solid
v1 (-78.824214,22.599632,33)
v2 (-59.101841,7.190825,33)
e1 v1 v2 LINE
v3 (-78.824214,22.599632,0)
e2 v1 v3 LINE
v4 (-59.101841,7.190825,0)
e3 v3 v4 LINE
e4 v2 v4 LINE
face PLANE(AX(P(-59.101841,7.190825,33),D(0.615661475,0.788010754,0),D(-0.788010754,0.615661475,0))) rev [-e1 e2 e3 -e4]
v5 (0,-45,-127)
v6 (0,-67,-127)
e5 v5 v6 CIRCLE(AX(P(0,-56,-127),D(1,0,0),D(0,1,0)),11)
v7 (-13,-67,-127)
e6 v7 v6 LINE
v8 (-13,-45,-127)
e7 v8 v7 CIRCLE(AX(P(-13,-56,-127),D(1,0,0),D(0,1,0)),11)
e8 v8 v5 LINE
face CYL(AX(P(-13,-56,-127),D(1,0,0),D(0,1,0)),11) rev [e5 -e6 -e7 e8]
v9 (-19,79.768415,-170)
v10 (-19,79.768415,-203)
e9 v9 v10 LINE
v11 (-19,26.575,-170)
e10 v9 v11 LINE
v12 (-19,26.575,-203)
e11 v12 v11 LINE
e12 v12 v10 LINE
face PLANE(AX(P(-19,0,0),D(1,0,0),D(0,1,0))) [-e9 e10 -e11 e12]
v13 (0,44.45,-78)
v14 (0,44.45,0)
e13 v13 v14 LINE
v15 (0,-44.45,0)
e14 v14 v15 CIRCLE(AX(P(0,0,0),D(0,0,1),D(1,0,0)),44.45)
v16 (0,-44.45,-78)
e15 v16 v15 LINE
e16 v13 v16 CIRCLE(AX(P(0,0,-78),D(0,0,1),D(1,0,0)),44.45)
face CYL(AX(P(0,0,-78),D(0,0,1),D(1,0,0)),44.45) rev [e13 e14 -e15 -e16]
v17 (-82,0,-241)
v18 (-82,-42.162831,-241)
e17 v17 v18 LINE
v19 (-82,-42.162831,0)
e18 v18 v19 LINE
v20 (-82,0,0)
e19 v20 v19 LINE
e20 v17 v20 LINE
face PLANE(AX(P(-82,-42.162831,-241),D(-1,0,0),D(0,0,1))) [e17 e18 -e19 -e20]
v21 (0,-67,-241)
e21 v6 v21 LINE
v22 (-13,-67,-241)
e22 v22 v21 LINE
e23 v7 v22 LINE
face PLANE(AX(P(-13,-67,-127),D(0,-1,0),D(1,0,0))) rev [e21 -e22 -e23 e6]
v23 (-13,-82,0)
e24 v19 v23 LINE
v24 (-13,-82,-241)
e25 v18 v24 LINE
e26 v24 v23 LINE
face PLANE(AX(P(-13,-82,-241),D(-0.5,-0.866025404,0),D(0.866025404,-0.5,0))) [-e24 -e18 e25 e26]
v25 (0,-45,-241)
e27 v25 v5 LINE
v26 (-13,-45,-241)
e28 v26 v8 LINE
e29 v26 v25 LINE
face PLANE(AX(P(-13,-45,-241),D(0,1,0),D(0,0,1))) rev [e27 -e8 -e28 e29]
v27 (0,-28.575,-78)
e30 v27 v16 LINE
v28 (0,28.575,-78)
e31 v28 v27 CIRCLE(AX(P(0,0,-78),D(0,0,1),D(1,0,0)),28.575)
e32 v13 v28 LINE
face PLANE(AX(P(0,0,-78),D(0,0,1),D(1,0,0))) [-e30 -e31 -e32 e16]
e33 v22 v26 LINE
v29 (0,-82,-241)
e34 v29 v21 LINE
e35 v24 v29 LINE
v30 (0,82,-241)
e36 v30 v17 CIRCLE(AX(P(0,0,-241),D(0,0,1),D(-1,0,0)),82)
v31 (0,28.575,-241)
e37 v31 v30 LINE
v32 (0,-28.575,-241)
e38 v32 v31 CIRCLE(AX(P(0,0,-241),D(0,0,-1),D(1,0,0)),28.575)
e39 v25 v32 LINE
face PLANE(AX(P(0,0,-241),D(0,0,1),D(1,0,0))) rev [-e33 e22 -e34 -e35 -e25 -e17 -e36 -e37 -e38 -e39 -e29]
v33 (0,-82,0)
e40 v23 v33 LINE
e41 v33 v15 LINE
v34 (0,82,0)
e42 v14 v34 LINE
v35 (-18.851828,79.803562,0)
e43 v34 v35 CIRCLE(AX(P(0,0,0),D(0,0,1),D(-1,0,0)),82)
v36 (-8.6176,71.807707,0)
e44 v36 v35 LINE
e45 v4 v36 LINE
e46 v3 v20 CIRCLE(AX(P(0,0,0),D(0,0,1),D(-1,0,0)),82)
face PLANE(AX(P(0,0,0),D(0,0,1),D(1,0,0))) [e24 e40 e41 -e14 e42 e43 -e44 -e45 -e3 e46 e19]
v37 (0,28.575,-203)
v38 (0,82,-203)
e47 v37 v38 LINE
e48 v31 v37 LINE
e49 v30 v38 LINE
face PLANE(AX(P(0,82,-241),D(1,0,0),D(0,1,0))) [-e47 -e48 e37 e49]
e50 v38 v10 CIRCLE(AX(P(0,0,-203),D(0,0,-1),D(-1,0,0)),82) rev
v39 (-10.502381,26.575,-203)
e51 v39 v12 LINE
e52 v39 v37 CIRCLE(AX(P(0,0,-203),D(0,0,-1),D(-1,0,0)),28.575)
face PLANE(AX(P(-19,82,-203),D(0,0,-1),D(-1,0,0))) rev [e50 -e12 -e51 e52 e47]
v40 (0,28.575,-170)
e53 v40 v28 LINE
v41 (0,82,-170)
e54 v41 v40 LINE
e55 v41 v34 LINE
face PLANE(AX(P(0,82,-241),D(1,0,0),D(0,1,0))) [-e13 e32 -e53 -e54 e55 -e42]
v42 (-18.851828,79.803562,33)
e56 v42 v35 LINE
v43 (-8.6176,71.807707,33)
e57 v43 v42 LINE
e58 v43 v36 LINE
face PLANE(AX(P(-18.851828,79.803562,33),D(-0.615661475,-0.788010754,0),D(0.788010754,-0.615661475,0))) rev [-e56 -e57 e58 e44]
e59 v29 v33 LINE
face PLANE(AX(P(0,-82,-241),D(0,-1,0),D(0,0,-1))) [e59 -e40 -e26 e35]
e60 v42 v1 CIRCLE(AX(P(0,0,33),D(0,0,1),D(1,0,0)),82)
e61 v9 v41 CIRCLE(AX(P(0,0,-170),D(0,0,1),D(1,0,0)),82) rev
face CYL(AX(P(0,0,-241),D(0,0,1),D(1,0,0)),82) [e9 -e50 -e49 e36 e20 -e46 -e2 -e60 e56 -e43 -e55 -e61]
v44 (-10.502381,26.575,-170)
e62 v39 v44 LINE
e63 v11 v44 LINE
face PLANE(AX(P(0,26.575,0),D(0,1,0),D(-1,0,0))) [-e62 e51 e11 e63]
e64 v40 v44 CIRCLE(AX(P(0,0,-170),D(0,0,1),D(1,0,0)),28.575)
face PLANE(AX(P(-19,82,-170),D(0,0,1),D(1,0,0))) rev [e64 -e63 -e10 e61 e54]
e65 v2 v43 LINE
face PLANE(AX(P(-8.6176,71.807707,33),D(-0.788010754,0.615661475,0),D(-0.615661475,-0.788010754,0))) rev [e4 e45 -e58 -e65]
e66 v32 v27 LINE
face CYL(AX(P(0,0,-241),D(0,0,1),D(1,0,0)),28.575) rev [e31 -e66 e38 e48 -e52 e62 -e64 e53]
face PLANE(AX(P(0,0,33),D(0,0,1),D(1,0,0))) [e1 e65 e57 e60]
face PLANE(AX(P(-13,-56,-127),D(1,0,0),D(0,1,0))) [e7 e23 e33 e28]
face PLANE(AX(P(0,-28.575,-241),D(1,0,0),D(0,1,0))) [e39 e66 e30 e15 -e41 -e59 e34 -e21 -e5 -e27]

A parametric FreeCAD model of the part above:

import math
import FreeCAD as App
import Part
import Sketcher
from FreeCAD import Vector
Q = App.Units.Quantity


def add_polygon(sketch, points):
    """Adds a closed chain of lines whose ends are joined by coincident constraints."""
    first, n = sketch.GeometryCount, len(points)
    for a, b in zip(points, points[1:] + points[:1]):
        sketch.addGeometry(Part.LineSegment(App.Vector(*a, 0), App.Vector(*b, 0)), False)
    for i in range(n):
        sketch.addConstraint(Sketcher.Constraint("Coincident", first + i, 2, first + (i + 1) % n, 1))

doc = App.newDocument("Part")
body = doc.addObject("PartDesign::Body", "Body")

# Sketch on XY plane
sketch1 = doc.addObject("Sketcher::SketchObject", "Sketch")
body.addObject(sketch1)
sketch1.AttachmentSupport = (doc.XY_Plane, [""])
sketch1.MapMode = "FlatFace"
sketch1.addGeometry(Part.LineSegment(Vector(0, -82, 0), Vector(0, -29, 0)), False)
sketch1.addGeometry(Part.ArcOfCircle(Part.Circle(Vector(0, 0, 0), Vector(0, 0, 1), 29), math.radians(90), math.radians(270)), False)
sketch1.addGeometry(Part.LineSegment(Vector(0, 29, 0), Vector(0, 82, 0)), False)
sketch1.addGeometry(Part.ArcOfCircle(Part.Circle(Vector(0, 0, 0), Vector(0, 0, 1), 82), math.radians(90), math.radians(180)), False)
sketch1.addGeometry(Part.LineSegment(Vector(-82, 0, 0), Vector(-82, -42, 0)), False)
sketch1.addGeometry(Part.LineSegment(Vector(-82, -42, 0), Vector(-13, -82, 0)), False)
sketch1.addGeometry(Part.LineSegment(Vector(-13, -82, 0), Vector(0, -82, 0)), False)
sketch1.addConstraint(Sketcher.Constraint("Coincident", 0, 2, 1, 2))
sketch1.addConstraint(Sketcher.Constraint("Coincident", 1, 1, 2, 1))
sketch1.addConstraint(Sketcher.Constraint("Coincident", 2, 2, 3, 1))
sketch1.addConstraint(Sketcher.Constraint("Tangent", 3, 2, 4, 1))
sketch1.addConstraint(Sketcher.Constraint("Coincident", 4, 2, 5, 1))
sketch1.addConstraint(Sketcher.Constraint("Coincident", 5, 2, 6, 1))
sketch1.addConstraint(Sketcher.Constraint("Coincident", 6, 2, 0, 1))
sketch1.addConstraint(Sketcher.Constraint("Vertical", 0))
sketch1.addConstraint(Sketcher.Constraint("Vertical", 2))
sketch1.addConstraint(Sketcher.Constraint("Vertical", 4))
sketch1.addConstraint(Sketcher.Constraint("Horizontal", 6))
sketch1.addConstraint(Sketcher.Constraint("Coincident", 1, 3, -1, 1))
sketch1.addConstraint(Sketcher.Constraint("Coincident", 3, 3, -1, 1))
sketch1.addConstraint(Sketcher.Constraint("Symmetric", 2, 2, 6, 2, -1, 1))
sketch1.addConstraint(Sketcher.Constraint("PointOnObject", 0, 2, -2))
sketch1.addConstraint(Sketcher.Constraint("Radius", 3, 82.0))
sketch1.addConstraint(Sketcher.Constraint("DistanceX", 6, 1, 6, 2, 13.0))
sketch1.addConstraint(Sketcher.Constraint("Angle", 5, Q("-30 deg")))
sketch1.addConstraint(Sketcher.Constraint("Radius", 1, 28.575))
pad1 = doc.addObject("PartDesign::Pad", "Pad")
body.addObject(pad1)
pad1.Profile = sketch1
pad1.Length = 241
pad1.Reversed = True

# Sketch on XY plane
sketch2 = doc.addObject("Sketcher::SketchObject", "Sketch001")
body.addObject(sketch2)
sketch2.AttachmentSupport = (doc.XY_Plane, [""])
sketch2.MapMode = "FlatFace"
sketch2.addGeometry(Part.LineSegment(Vector(0, 29, 0), Vector(0, 44, 0)), False)
sketch2.addGeometry(Part.ArcOfCircle(Part.Circle(Vector(0, 0, 0), Vector(0, 0, 1), 44), math.radians(90), math.radians(270)), False)
sketch2.addGeometry(Part.LineSegment(Vector(0, -44, 0), Vector(0, -29, 0)), False)
sketch2.addGeometry(Part.ArcOfCircle(Part.Circle(Vector(0, 0, 0), Vector(0, 0, 1), 29), math.radians(90), math.radians(270)), False)
sketch2.addConstraint(Sketcher.Constraint("Coincident", 0, 2, 1, 1))
sketch2.addConstraint(Sketcher.Constraint("Coincident", 1, 2, 2, 1))
sketch2.addConstraint(Sketcher.Constraint("Coincident", 2, 2, 3, 2))
sketch2.addConstraint(Sketcher.Constraint("Coincident", 3, 1, 0, 1))
sketch2.addConstraint(Sketcher.Constraint("Vertical", 0))
sketch2.addConstraint(Sketcher.Constraint("Vertical", 2))
sketch2.addConstraint(Sketcher.Constraint("Coincident", 1, 3, -1, 1))
sketch2.addConstraint(Sketcher.Constraint("Coincident", 3, 3, -1, 1))
sketch2.addConstraint(Sketcher.Constraint("PointOnObject", 0, 2, -2))
sketch2.addConstraint(Sketcher.Constraint("PointOnObject", 1, 2, -2))
sketch2.addConstraint(Sketcher.Constraint("Radius", 1, 44.45))
sketch2.addConstraint(Sketcher.Constraint("Radius", 3, 28.575))
pocket1 = doc.addObject("PartDesign::Pocket", "Pocket")
body.addObject(pocket1)
pocket1.Profile = sketch2
pocket1.Length = 78

# Sketch on XY plane
sketch3 = doc.addObject("Sketcher::SketchObject", "Sketch002")
body.addObject(sketch3)
sketch3.AttachmentSupport = (doc.XY_Plane, [""])
sketch3.MapMode = "FlatFace"
sketch3.AttachmentOffset = App.Placement(Vector(0, 0, 33), App.Rotation())
sketch3.addGeometry(Part.LineSegment(Vector(-9, 72, 0), Vector(-19, 80, 0)), False)
sketch3.addGeometry(Part.ArcOfCircle(Part.Circle(Vector(0, 0, 0), Vector(0, 0, 1), 82), math.radians(103), math.radians(164)), False)
sketch3.addGeometry(Part.LineSegment(Vector(-79, 23, 0), Vector(-59, 7, 0)), False)
sketch3.addGeometry(Part.LineSegment(Vector(-59, 7, 0), Vector(-9, 72, 0)), False)
sketch3.addConstraint(Sketcher.Constraint("Coincident", 0, 2, 1, 1))
sketch3.addConstraint(Sketcher.Constraint("Coincident", 1, 2, 2, 1))
sketch3.addConstraint(Sketcher.Constraint("Coincident", 2, 2, 3, 1))
sketch3.addConstraint(Sketcher.Constraint("Coincident", 3, 2, 0, 1))
sketch3.addConstraint(Sketcher.Constraint("Coincident", 1, 3, -1, 1))
sketch3.addConstraint(Sketcher.Constraint("Parallel", 0, 2))
sketch3.addConstraint(Sketcher.Constraint("Perpendicular", 2, 3))
sketch3.addConstraint(Sketcher.Constraint("Radius", 1, 82.0))
sketch3.addConstraint(Sketcher.Constraint("Angle", 0, Q("142 deg")))
sketch3.addConstraint(Sketcher.Constraint("Distance", 3, 82.0))
sketch3.addConstraint(Sketcher.Constraint("DistanceX", 3, 2, -1, 1, 8.6176))
sketch3.addConstraint(Sketcher.Constraint("Distance", 2, 25.028051))
pad2 = doc.addObject("PartDesign::Pad", "Pad001")
body.addObject(pad2)
pad2.Profile = sketch3
pad2.Length = 33
pad2.Reversed = True

# Sketch on YZ plane
sketch4 = doc.addObject("Sketcher::SketchObject", "Sketch003")
body.addObject(sketch4)
sketch4.AttachmentSupport = (doc.YZ_Plane, [""])
sketch4.MapMode = "FlatFace"
add_polygon(sketch4, [(82, -170), (29, -170), (29, -203), (82, -203)])  # lines 0-3
sketch4.addConstraint(Sketcher.Constraint("Horizontal", 0))
sketch4.addConstraint(Sketcher.Constraint("Vertical", 1))
sketch4.addConstraint(Sketcher.Constraint("Horizontal", 2))
sketch4.addConstraint(Sketcher.Constraint("Vertical", 3))
sketch4.addConstraint(Sketcher.Constraint("DistanceY", 1, 2, 1, 1, 33.0))
sketch4.addConstraint(Sketcher.Constraint("DistanceY", 0, 2, -1, 1, 170.0))
sketch4.addConstraint(Sketcher.Constraint("DistanceX", -1, 1, 2, 2, 82.0))
sketch4.addConstraint(Sketcher.Constraint("DistanceX", 0, 2, 0, 1, 53.425))
pocket2 = doc.addObject("PartDesign::Pocket", "Pocket001")
body.addObject(pocket2)
pocket2.Profile = sketch4
pocket2.Length = 19

# Sketch on XZ plane
sketch5 = doc.addObject("Sketcher::SketchObject", "Sketch004")
body.addObject(sketch5)
sketch5.AttachmentSupport = (doc.XZ_Plane, [""])
sketch5.MapMode = "FlatFace"
sketch5.AttachmentOffset = App.Placement(Vector(0, 0, -28.575), App.Rotation())
add_polygon(sketch5, [(-19, -203), (-19, -170), (0, -170), (0, -203)])  # lines 0-3
sketch5.addConstraint(Sketcher.Constraint("Vertical", 0))
sketch5.addConstraint(Sketcher.Constraint("Horizontal", 1))
sketch5.addConstraint(Sketcher.Constraint("Vertical", 2))
sketch5.addConstraint(Sketcher.Constraint("Horizontal", 3))
sketch5.addConstraint(Sketcher.Constraint("PointOnObject", 1, 2, -2))
sketch5.addConstraint(Sketcher.Constraint("DistanceX", 1, 1, 1, 2, 19.0))
sketch5.addConstraint(Sketcher.Constraint("DistanceY", 0, 1, 0, 2, 33.0))
sketch5.addConstraint(Sketcher.Constraint("DistanceY", 0, 2, -1, 1, 170.0))
pocket3 = doc.addObject("PartDesign::Pocket", "Pocket002")
body.addObject(pocket3)
pocket3.Profile = sketch5
pocket3.Length = 2
pocket3.Reversed = True

# Sketch on YZ plane
sketch6 = doc.addObject("Sketcher::SketchObject", "Sketch005")
body.addObject(sketch6)
sketch6.AttachmentSupport = (doc.YZ_Plane, [""])
sketch6.MapMode = "FlatFace"
sketch6.addGeometry(Part.LineSegment(Vector(-45, -241, 0), Vector(-45, -127, 0)), False)
sketch6.addGeometry(Part.ArcOfCircle(Part.Circle(Vector(-56, -127, 0), Vector(0, 0, 1), 11), math.radians(0), math.radians(180)), False)
sketch6.addGeometry(Part.LineSegment(Vector(-67, -127, 0), Vector(-67, -241, 0)), False)
sketch6.addGeometry(Part.LineSegment(Vector(-67, -241, 0), Vector(-45, -241, 0)), False)
sketch6.addConstraint(Sketcher.Constraint("Tangent", 0, 2, 1, 1))
sketch6.addConstraint(Sketcher.Constraint("Tangent", 1, 2, 2, 1))
sketch6.addConstraint(Sketcher.Constraint("Coincident", 2, 2, 3, 1))
sketch6.addConstraint(Sketcher.Constraint("Coincident", 3, 2, 0, 1))
sketch6.addConstraint(Sketcher.Constraint("Vertical", 0))
sketch6.addConstraint(Sketcher.Constraint("Vertical", 2))
sketch6.addConstraint(Sketcher.Constraint("Horizontal", 3))
sketch6.addConstraint(Sketcher.Constraint("Radius", 1, 11.0))
sketch6.addConstraint(Sketcher.Constraint("DistanceY", 0, 1, 0, 2, 114.0))
sketch6.addConstraint(Sketcher.Constraint("DistanceX", 1, 3, -1, 1, 56.0))
sketch6.addConstraint(Sketcher.Constraint("DistanceY", 1, 3, -1, 1, 127.0))
pocket4 = doc.addObject("PartDesign::Pocket", "Pocket003")
body.addObject(pocket4)
pocket4.Profile = sketch6
pocket4.Length = 13

doc.recompute()
